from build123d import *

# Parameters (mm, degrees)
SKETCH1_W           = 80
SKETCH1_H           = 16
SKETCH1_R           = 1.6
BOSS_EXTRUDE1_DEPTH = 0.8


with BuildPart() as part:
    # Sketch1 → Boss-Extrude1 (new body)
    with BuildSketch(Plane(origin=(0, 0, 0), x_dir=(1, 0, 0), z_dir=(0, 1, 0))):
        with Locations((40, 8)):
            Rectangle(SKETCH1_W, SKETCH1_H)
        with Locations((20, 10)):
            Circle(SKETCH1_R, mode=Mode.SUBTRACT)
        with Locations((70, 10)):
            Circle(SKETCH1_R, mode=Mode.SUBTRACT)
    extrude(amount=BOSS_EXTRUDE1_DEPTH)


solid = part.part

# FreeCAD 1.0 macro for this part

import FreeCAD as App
import Part
import Sketcher
Q = App.Units.Quantity


def add_polygon(sketch, points):
    """Adds a closed chain of lines whose ends are joined by coincident constraints."""
    first, n = sketch.GeometryCount, len(points)
    for a, b in zip(points, points[1:] + points[:1]):
        sketch.addGeometry(Part.LineSegment(App.Vector(*a, 0), App.Vector(*b, 0)), False)
    for i in range(n):
        sketch.addConstraint(Sketcher.Constraint("Coincident", first + i, 2, first + (i + 1) % n, 1))

doc = App.newDocument("Part")
body = doc.addObject("PartDesign::Body", "Body")

sketch1 = body.newObject("Sketcher::SketchObject", "Sketch")
sketch1.AttachmentSupport = (doc.getObject("XZ_Plane"), [""])
sketch1.MapMode = "FlatFace"
add_polygon(sketch1, [(0, -16), (0, 0), (80, 0), (80, -16)])
sketch1.addGeometry(Part.Circle(App.Vector(20, -10, 0), App.Vector(0, 0, 1), 1.6), False)
sketch1.addGeometry(Part.Circle(App.Vector(70, -10, 0), App.Vector(0, 0, 1), 1.6), False)
sketch1.addConstraint([
    Sketcher.Constraint("Vertical", 0),
    Sketcher.Constraint("Horizontal", 1),
    Sketcher.Constraint("Vertical", 2),
    Sketcher.Constraint("Horizontal", 3),
    Sketcher.Constraint("Coincident", 0, 2, -1, 1),
    Sketcher.Constraint("Equal", 4, 5),
    Sketcher.Constraint("Horizontal", 4, 3, 5, 3),
    Sketcher.Constraint("Diameter", 4, Q("3.2 mm")),
    Sketcher.Constraint("DistanceX", 1, 1, 1, 2, Q("80 mm")),
    Sketcher.Constraint("DistanceY", 0, 1, 0, 2, Q("16 mm")),
    Sketcher.Constraint("DistanceX", -1, 1, 4, 3, Q("20 mm")),
    Sketcher.Constraint("DistanceY", 4, 3, -1, 1, Q("10 mm")),
    Sketcher.Constraint("DistanceX", -1, 1, 5, 3, Q("70 mm")),
])
pad1 = body.newObject("PartDesign::Pad", "Pad")
pad1.Profile = sketch1
pad1.Length = 0.8
pad1.Reversed = True

doc.recompute()
